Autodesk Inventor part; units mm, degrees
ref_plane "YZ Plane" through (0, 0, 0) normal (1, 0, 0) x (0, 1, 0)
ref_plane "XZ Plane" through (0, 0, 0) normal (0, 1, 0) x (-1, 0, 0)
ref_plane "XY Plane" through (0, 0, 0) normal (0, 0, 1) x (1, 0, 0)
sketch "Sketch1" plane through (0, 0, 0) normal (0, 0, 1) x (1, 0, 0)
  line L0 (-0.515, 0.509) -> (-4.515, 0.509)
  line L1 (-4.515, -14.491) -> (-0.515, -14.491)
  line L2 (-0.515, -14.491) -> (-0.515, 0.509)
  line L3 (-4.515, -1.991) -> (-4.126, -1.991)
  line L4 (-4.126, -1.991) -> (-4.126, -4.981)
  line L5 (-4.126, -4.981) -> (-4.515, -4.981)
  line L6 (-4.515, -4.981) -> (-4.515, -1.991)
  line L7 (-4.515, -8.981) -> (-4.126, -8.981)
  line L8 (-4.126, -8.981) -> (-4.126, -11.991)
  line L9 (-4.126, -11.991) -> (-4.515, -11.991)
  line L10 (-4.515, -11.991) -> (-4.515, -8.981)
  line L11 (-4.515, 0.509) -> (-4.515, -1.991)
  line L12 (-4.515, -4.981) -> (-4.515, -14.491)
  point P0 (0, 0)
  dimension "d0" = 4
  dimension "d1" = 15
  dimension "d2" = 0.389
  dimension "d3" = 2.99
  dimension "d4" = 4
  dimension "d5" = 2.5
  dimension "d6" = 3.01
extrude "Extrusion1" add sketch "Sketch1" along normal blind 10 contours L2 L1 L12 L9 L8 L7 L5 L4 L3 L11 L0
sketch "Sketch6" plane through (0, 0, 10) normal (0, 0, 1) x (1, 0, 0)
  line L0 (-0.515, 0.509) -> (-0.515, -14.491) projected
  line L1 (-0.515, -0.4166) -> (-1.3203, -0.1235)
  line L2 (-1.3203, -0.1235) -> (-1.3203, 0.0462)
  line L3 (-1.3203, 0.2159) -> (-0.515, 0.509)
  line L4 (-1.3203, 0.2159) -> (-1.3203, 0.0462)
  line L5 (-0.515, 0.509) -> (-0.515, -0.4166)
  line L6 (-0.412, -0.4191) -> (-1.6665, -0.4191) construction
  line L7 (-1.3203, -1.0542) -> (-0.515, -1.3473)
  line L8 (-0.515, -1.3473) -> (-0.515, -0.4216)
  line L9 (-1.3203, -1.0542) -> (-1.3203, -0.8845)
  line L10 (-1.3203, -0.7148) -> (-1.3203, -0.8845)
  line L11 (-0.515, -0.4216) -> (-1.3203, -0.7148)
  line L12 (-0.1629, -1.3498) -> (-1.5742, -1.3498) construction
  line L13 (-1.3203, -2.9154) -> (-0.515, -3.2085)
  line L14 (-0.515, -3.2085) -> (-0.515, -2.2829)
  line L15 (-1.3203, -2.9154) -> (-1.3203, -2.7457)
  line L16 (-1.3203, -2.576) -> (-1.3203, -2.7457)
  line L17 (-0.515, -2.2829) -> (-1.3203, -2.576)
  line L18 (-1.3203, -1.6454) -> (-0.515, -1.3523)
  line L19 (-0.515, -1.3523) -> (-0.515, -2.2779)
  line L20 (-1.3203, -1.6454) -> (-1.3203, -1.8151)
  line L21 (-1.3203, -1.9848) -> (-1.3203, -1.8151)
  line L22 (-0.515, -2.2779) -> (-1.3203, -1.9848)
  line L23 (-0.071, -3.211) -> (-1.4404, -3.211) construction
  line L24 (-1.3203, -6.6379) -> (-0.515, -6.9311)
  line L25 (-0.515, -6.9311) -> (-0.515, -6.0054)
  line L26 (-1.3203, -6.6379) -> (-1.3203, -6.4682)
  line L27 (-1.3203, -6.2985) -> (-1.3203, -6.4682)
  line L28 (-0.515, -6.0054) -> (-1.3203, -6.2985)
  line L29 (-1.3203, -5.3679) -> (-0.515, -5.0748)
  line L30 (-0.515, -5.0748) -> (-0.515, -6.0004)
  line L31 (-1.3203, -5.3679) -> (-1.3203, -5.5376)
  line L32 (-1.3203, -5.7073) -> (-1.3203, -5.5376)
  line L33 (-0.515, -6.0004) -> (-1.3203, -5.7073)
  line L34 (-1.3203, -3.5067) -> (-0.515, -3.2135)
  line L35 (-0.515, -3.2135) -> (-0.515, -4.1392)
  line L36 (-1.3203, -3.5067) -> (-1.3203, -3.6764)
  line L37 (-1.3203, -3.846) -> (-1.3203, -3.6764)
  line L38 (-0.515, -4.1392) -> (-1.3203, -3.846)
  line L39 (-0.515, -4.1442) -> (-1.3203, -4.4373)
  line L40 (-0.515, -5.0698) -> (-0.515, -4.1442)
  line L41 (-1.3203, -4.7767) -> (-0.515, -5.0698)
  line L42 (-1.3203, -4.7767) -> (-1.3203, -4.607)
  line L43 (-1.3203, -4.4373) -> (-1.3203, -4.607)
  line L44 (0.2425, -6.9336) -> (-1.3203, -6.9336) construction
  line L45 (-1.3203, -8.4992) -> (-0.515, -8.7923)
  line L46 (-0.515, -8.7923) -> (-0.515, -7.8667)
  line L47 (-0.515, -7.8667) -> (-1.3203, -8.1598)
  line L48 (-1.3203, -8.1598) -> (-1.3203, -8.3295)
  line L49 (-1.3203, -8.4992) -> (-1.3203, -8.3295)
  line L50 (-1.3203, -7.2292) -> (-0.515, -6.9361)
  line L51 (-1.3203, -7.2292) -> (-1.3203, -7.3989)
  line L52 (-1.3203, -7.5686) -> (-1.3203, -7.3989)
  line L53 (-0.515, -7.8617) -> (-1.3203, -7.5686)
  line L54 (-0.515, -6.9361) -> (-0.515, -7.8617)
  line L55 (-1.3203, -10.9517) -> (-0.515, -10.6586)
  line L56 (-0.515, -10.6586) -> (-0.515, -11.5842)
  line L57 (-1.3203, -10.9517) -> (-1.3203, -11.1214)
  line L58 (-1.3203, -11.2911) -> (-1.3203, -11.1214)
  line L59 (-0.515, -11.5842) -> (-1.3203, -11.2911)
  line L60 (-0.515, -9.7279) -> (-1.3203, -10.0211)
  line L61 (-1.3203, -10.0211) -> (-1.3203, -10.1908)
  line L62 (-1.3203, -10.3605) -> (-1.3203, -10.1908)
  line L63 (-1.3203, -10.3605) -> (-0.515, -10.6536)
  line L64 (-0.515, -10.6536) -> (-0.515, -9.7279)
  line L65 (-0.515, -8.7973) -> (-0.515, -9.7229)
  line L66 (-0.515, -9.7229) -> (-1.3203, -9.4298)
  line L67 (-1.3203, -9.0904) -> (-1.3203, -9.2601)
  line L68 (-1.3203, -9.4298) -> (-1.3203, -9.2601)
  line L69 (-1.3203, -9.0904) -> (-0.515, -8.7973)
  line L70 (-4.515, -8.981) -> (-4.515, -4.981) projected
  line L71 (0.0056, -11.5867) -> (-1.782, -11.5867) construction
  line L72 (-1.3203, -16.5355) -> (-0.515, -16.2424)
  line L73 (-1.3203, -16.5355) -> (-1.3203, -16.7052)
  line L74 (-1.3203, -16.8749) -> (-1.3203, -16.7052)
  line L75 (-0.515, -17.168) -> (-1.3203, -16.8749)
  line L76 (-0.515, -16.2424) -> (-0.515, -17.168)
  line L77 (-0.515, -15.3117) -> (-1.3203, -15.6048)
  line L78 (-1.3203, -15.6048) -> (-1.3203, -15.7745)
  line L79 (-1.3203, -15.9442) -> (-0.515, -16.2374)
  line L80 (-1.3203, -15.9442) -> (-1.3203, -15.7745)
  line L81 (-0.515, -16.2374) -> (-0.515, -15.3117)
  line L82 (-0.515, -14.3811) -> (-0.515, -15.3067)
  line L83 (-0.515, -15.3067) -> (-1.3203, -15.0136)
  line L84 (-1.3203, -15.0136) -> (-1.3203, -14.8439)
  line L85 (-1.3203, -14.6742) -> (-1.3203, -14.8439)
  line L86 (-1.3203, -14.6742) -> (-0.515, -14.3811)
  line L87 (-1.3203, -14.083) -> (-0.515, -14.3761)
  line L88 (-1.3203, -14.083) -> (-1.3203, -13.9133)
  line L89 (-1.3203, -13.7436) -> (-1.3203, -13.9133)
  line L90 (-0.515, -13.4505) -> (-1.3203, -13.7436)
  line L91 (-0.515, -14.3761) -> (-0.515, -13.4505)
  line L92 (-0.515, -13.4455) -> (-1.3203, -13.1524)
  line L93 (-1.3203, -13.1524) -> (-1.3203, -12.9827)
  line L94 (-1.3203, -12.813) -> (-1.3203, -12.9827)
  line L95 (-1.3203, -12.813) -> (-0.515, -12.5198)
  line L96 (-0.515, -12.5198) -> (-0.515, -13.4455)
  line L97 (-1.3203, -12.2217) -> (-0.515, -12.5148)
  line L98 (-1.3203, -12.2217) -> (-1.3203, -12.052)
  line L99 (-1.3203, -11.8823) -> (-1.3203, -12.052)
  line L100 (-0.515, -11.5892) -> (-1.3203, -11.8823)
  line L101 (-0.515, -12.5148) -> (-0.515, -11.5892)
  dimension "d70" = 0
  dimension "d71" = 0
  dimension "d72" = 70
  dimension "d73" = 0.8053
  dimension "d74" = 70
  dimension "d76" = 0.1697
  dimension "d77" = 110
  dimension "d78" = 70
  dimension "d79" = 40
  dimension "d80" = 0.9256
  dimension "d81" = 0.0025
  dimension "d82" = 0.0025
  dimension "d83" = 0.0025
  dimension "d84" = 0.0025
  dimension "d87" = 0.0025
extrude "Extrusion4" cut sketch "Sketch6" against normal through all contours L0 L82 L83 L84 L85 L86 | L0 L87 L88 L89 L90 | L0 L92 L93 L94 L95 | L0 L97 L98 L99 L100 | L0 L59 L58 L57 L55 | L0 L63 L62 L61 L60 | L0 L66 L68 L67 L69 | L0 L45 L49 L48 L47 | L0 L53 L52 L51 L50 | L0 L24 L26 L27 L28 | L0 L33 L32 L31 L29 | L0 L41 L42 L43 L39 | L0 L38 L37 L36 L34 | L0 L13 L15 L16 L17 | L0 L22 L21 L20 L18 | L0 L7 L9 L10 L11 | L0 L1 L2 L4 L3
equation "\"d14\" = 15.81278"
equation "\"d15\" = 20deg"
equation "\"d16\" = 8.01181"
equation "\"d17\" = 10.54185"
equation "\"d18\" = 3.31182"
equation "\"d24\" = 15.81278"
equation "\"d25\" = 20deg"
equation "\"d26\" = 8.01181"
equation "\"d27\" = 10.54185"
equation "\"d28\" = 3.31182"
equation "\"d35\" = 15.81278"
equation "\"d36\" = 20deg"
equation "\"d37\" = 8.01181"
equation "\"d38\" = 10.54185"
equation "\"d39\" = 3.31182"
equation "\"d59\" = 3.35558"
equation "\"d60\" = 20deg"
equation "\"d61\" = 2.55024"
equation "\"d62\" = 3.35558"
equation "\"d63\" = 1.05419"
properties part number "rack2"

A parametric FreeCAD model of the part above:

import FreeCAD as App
import Part
import Sketcher
Q = App.Units.Quantity

doc = App.newDocument("Part")
body = doc.addObject("PartDesign::Body", "Body")

# Sketch on XY plane
sketch1 = body.newObject("Sketcher::SketchObject", "Sketch")
sketch1.AttachmentSupport = (doc.getObject("XY_Plane"), [""])
sketch1.MapMode = "FlatFace"
sketch1.addGeometry([
    Part.LineSegment(App.Vector(-0.52, -14.49, 0), App.Vector(-0.52, 0.51, 0)),  # 0
    Part.LineSegment(App.Vector(-0.52, 0.51, 0), App.Vector(-4.51, 0.51, 0)),  # 1
    Part.LineSegment(App.Vector(-4.51, 0.51, 0), App.Vector(-4.51, -1.99, 0)),  # 2
    Part.LineSegment(App.Vector(-4.51, -1.99, 0), App.Vector(-4.13, -1.99, 0)),  # 3
    Part.LineSegment(App.Vector(-4.13, -1.99, 0), App.Vector(-4.13, -4.98, 0)),  # 4
    Part.LineSegment(App.Vector(-4.13, -4.98, 0), App.Vector(-4.51, -4.98, 0)),  # 5
    Part.LineSegment(App.Vector(-4.51, -4.98, 0), App.Vector(-4.51, -8.98, 0)),  # 6
    Part.LineSegment(App.Vector(-4.51, -8.98, 0), App.Vector(-4.13, -8.98, 0)),  # 7
    Part.LineSegment(App.Vector(-4.13, -8.98, 0), App.Vector(-4.13, -11.99, 0)),  # 8
    Part.LineSegment(App.Vector(-4.13, -11.99, 0), App.Vector(-4.51, -11.99, 0)),  # 9
    Part.LineSegment(App.Vector(-4.51, -11.99, 0), App.Vector(-4.51, -14.49, 0)),  # 10
    Part.LineSegment(App.Vector(-4.51, -14.49, 0), App.Vector(-0.52, -14.49, 0)),  # 11
], False)
sketch1.addConstraint([
    Sketcher.Constraint("Coincident", 0, 2, 1, 1),
    Sketcher.Constraint("Coincident", 1, 2, 2, 1),
    Sketcher.Constraint("Coincident", 2, 2, 3, 1),
    Sketcher.Constraint("Coincident", 3, 2, 4, 1),
    Sketcher.Constraint("Coincident", 4, 2, 5, 1),
    Sketcher.Constraint("Coincident", 5, 2, 6, 1),
    Sketcher.Constraint("Coincident", 6, 2, 7, 1),
    Sketcher.Constraint("Coincident", 7, 2, 8, 1),
    Sketcher.Constraint("Coincident", 8, 2, 9, 1),
    Sketcher.Constraint("Coincident", 9, 2, 10, 1),
    Sketcher.Constraint("Coincident", 10, 2, 11, 1),
    Sketcher.Constraint("Coincident", 11, 2, 0, 1),
    Sketcher.Constraint("Vertical", 0),
    Sketcher.Constraint("Horizontal", 1),
    Sketcher.Constraint("Vertical", 2),
    Sketcher.Constraint("Horizontal", 3),
    Sketcher.Constraint("Vertical", 4),
    Sketcher.Constraint("Horizontal", 5),
    Sketcher.Constraint("Vertical", 6),
    Sketcher.Constraint("Horizontal", 7),
    Sketcher.Constraint("Vertical", 8),
    Sketcher.Constraint("Horizontal", 9),
    Sketcher.Constraint("Vertical", 10),
    Sketcher.Constraint("Horizontal", 11),
    Sketcher.Constraint("Vertical", 2, 2, 5, 2),
    Sketcher.Constraint("Vertical", 4, 2, 7, 2),
    Sketcher.Constraint("Vertical", 6, 2, 9, 2),
    Sketcher.Constraint("Equal", 11, 6),
    Sketcher.Constraint("Equal", 2, 10),
    Sketcher.Constraint("DistanceX", 1, 2, 1, 1, Q("4 mm")),
    Sketcher.Constraint("DistanceY", 0, 1, 0, 2, Q("15 mm")),
    Sketcher.Constraint("DistanceY", 2, 2, 2, 1, Q("2.5 mm")),
    Sketcher.Constraint("DistanceY", 4, 2, 4, 1, Q("2.99 mm")),
    Sketcher.Constraint("DistanceX", 3, 1, 3, 2, Q("0.389 mm")),
    Sketcher.Constraint("DistanceX", 0, 2, -1, 1, Q("0.515 mm")),
    Sketcher.Constraint("DistanceY", -1, 1, 0, 2, Q("0.509 mm")),
])
pad1 = body.newObject("PartDesign::Pad", "Pad")
pad1.Profile = sketch1
pad1.Length = 10

# Sketch on XY plane
sketch2 = body.newObject("Sketcher::SketchObject", "Sketch001")
sketch2.AttachmentSupport = (doc.getObject("XY_Plane"), [""])
sketch2.MapMode = "FlatFace"
sketch2.AttachmentOffset = App.Placement(App.Vector(0, 0, 10), App.Rotation())
sketch2.addGeometry([
    Part.LineSegment(App.Vector(-0.52, -15.31, 0), App.Vector(-0.52, -14.38, 0)),  # 0
    Part.LineSegment(App.Vector(-0.52, -14.38, 0), App.Vector(-1.32, -14.67, 0)),  # 1
    Part.LineSegment(App.Vector(-1.32, -14.67, 0), App.Vector(-1.32, -15.01, 0)),  # 2
    Part.LineSegment(App.Vector(-1.32, -15.01, 0), App.Vector(-0.52, -15.31, 0)),  # 3
    Part.LineSegment(App.Vector(-0.52, -14.38, 0), App.Vector(-0.52, -13.45, 0)),  # 4
    Part.LineSegment(App.Vector(-0.52, -13.45, 0), App.Vector(-1.32, -13.74, 0)),  # 5
    Part.LineSegment(App.Vector(-1.32, -13.74, 0), App.Vector(-1.32, -14.08, 0)),  # 6
    Part.LineSegment(App.Vector(-1.32, -14.08, 0), App.Vector(-0.52, -14.38, 0)),  # 7
    Part.LineSegment(App.Vector(-0.52, -13.45, 0), App.Vector(-0.52, -12.52, 0)),  # 8
    Part.LineSegment(App.Vector(-0.52, -12.52, 0), App.Vector(-1.32, -12.81, 0)),  # 9
    Part.LineSegment(App.Vector(-1.32, -12.81, 0), App.Vector(-1.32, -13.15, 0)),  # 10
    Part.LineSegment(App.Vector(-1.32, -13.15, 0), App.Vector(-0.52, -13.45, 0)),  # 11
    Part.LineSegment(App.Vector(-0.52, -12.51, 0), App.Vector(-0.52, -11.59, 0)),  # 12
    Part.LineSegment(App.Vector(-0.52, -11.59, 0), App.Vector(-1.32, -11.88, 0)),  # 13
    Part.LineSegment(App.Vector(-1.32, -11.88, 0), App.Vector(-1.32, -12.22, 0)),  # 14
    Part.LineSegment(App.Vector(-1.32, -12.22, 0), App.Vector(-0.52, -12.51, 0)),  # 15
    Part.LineSegment(App.Vector(-0.52, -11.58, 0), App.Vector(-0.52, -10.66, 0)),  # 16
    Part.LineSegment(App.Vector(-0.52, -10.66, 0), App.Vector(-1.32, -10.95, 0)),  # 17
    Part.LineSegment(App.Vector(-1.32, -10.95, 0), App.Vector(-1.32, -11.29, 0)),  # 18
    Part.LineSegment(App.Vector(-1.32, -11.29, 0), App.Vector(-0.52, -11.58, 0)),  # 19
    Part.LineSegment(App.Vector(-0.52, -10.65, 0), App.Vector(-0.52, -9.73, 0)),  # 20
    Part.LineSegment(App.Vector(-0.52, -9.73, 0), App.Vector(-1.32, -10.02, 0)),  # 21
    Part.LineSegment(App.Vector(-1.32, -10.02, 0), App.Vector(-1.32, -10.36, 0)),  # 22
    Part.LineSegment(App.Vector(-1.32, -10.36, 0), App.Vector(-0.52, -10.65, 0)),  # 23
    Part.LineSegment(App.Vector(-0.52, -9.72, 0), App.Vector(-0.52, -8.8, 0)),  # 24
    Part.LineSegment(App.Vector(-0.52, -8.8, 0), App.Vector(-1.32, -9.09, 0)),  # 25
    Part.LineSegment(App.Vector(-1.32, -9.09, 0), App.Vector(-1.32, -9.43, 0)),  # 26
    Part.LineSegment(App.Vector(-1.32, -9.43, 0), App.Vector(-0.52, -9.72, 0)),  # 27
    Part.LineSegment(App.Vector(-0.52, -8.79, 0), App.Vector(-0.52, -7.87, 0)),  # 28
    Part.LineSegment(App.Vector(-0.52, -7.87, 0), App.Vector(-1.32, -8.16, 0)),  # 29
    Part.LineSegment(App.Vector(-1.32, -8.16, 0), App.Vector(-1.32, -8.5, 0)),  # 30
    Part.LineSegment(App.Vector(-1.32, -8.5, 0), App.Vector(-0.52, -8.79, 0)),  # 31
    Part.LineSegment(App.Vector(-0.52, -7.86, 0), App.Vector(-0.52, -6.94, 0)),  # 32
    Part.LineSegment(App.Vector(-0.52, -6.94, 0), App.Vector(-1.32, -7.23, 0)),  # 33
    Part.LineSegment(App.Vector(-1.32, -7.23, 0), App.Vector(-1.32, -7.57, 0)),  # 34
    Part.LineSegment(App.Vector(-1.32, -7.57, 0), App.Vector(-0.52, -7.86, 0)),  # 35
    Part.LineSegment(App.Vector(-0.52, -6.93, 0), App.Vector(-0.52, -6.01, 0)),  # 36
    Part.LineSegment(App.Vector(-0.52, -6.01, 0), App.Vector(-1.32, -6.3, 0)),  # 37
    Part.LineSegment(App.Vector(-1.32, -6.3, 0), App.Vector(-1.32, -6.64, 0)),  # 38
    Part.LineSegment(App.Vector(-1.32, -6.64, 0), App.Vector(-0.52, -6.93, 0)),  # 39
    Part.LineSegment(App.Vector(-0.52, -6, 0), App.Vector(-0.52, -5.07, 0)),  # 40
    Part.LineSegment(App.Vector(-0.52, -5.07, 0), App.Vector(-1.32, -5.37, 0)),  # 41
    Part.LineSegment(App.Vector(-1.32, -5.37, 0), App.Vector(-1.32, -5.71, 0)),  # 42
    Part.LineSegment(App.Vector(-1.32, -5.71, 0), App.Vector(-0.52, -6, 0)),  # 43
    Part.LineSegment(App.Vector(-0.52, -5.07, 0), App.Vector(-0.52, -4.14, 0)),  # 44
    Part.LineSegment(App.Vector(-0.52, -4.14, 0), App.Vector(-1.32, -4.44, 0)),  # 45
    Part.LineSegment(App.Vector(-1.32, -4.44, 0), App.Vector(-1.32, -4.78, 0)),  # 46
    Part.LineSegment(App.Vector(-1.32, -4.78, 0), App.Vector(-0.52, -5.07, 0)),  # 47
    Part.LineSegment(App.Vector(-0.52, -4.14, 0), App.Vector(-0.52, -3.21, 0)),  # 48
    Part.LineSegment(App.Vector(-0.52, -3.21, 0), App.Vector(-1.32, -3.51, 0)),  # 49
    Part.LineSegment(App.Vector(-1.32, -3.51, 0), App.Vector(-1.32, -3.85, 0)),  # 50
    Part.LineSegment(App.Vector(-1.32, -3.85, 0), App.Vector(-0.52, -4.14, 0)),  # 51
    Part.LineSegment(App.Vector(-0.52, -3.21, 0), App.Vector(-0.52, -2.28, 0)),  # 52
    Part.LineSegment(App.Vector(-0.52, -2.28, 0), App.Vector(-1.32, -2.58, 0)),  # 53
    Part.LineSegment(App.Vector(-1.32, -2.58, 0), App.Vector(-1.32, -2.92, 0)),  # 54
    Part.LineSegment(App.Vector(-1.32, -2.92, 0), App.Vector(-0.52, -3.21, 0)),  # 55
    Part.LineSegment(App.Vector(-0.52, -2.28, 0), App.Vector(-0.52, -1.35, 0)),  # 56
    Part.LineSegment(App.Vector(-0.52, -1.35, 0), App.Vector(-1.32, -1.65, 0)),  # 57
    Part.LineSegment(App.Vector(-1.32, -1.65, 0), App.Vector(-1.32, -1.98, 0)),  # 58
    Part.LineSegment(App.Vector(-1.32, -1.98, 0), App.Vector(-0.52, -2.28, 0)),  # 59
    Part.LineSegment(App.Vector(-0.52, -1.35, 0), App.Vector(-0.52, -0.42, 0)),  # 60
    Part.LineSegment(App.Vector(-0.52, -0.42, 0), App.Vector(-1.32, -0.71, 0)),  # 61
    Part.LineSegment(App.Vector(-1.32, -0.71, 0), App.Vector(-1.32, -1.05, 0)),  # 62
    Part.LineSegment(App.Vector(-1.32, -1.05, 0), App.Vector(-0.52, -1.35, 0)),  # 63
    Part.LineSegment(App.Vector(-0.52, -0.42, 0), App.Vector(-0.52, 0.51, 0)),  # 64
    Part.LineSegment(App.Vector(-0.52, 0.51, 0), App.Vector(-1.32, 0.22, 0)),  # 65
    Part.LineSegment(App.Vector(-1.32, 0.22, 0), App.Vector(-1.32, -0.12, 0)),  # 66
    Part.LineSegment(App.Vector(-1.32, -0.12, 0), App.Vector(-0.52, -0.42, 0)),  # 67
], False)
sketch2.addConstraint([
    Sketcher.Constraint("Coincident", 0, 2, 1, 1),
    Sketcher.Constraint("Coincident", 1, 2, 2, 1),
    Sketcher.Constraint("Coincident", 2, 2, 3, 1),
    Sketcher.Constraint("Coincident", 3, 2, 0, 1),
    Sketcher.Constraint("Coincident", 4, 2, 5, 1),
    Sketcher.Constraint("Coincident", 5, 2, 6, 1),
    Sketcher.Constraint("Coincident", 6, 2, 7, 1),
    Sketcher.Constraint("Coincident", 7, 2, 4, 1),
    Sketcher.Constraint("Coincident", 8, 2, 9, 1),
    Sketcher.Constraint("Coincident", 9, 2, 10, 1),
    Sketcher.Constraint("Coincident", 10, 2, 11, 1),
    Sketcher.Constraint("Coincident", 11, 2, 8, 1),
    Sketcher.Constraint("Coincident", 12, 2, 13, 1),
    Sketcher.Constraint("Coincident", 13, 2, 14, 1),
    Sketcher.Constraint("Coincident", 14, 2, 15, 1),
    Sketcher.Constraint("Coincident", 15, 2, 12, 1),
    Sketcher.Constraint("Coincident", 16, 2, 17, 1),
    Sketcher.Constraint("Coincident", 17, 2, 18, 1),
    Sketcher.Constraint("Coincident", 18, 2, 19, 1),
    Sketcher.Constraint("Coincident", 19, 2, 16, 1),
    Sketcher.Constraint("Coincident", 20, 2, 21, 1),
    Sketcher.Constraint("Coincident", 21, 2, 22, 1),
    Sketcher.Constraint("Coincident", 22, 2, 23, 1),
    Sketcher.Constraint("Coincident", 23, 2, 20, 1),
    Sketcher.Constraint("Coincident", 24, 2, 25, 1),
    Sketcher.Constraint("Coincident", 25, 2, 26, 1),
    Sketcher.Constraint("Coincident", 26, 2, 27, 1),
    Sketcher.Constraint("Coincident", 27, 2, 24, 1),
    Sketcher.Constraint("Coincident", 28, 2, 29, 1),
    Sketcher.Constraint("Coincident", 29, 2, 30, 1),
    Sketcher.Constraint("Coincident", 30, 2, 31, 1),
    Sketcher.Constraint("Coincident", 31, 2, 28, 1),
    Sketcher.Constraint("Coincident", 32, 2, 33, 1),
    Sketcher.Constraint("Coincident", 33, 2, 34, 1),
    Sketcher.Constraint("Coincident", 34, 2, 35, 1),
    Sketcher.Constraint("Coincident", 35, 2, 32, 1),
    Sketcher.Constraint("Coincident", 36, 2, 37, 1),
    Sketcher.Constraint("Coincident", 37, 2, 38, 1),
    Sketcher.Constraint("Coincident", 38, 2, 39, 1),
    Sketcher.Constraint("Coincident", 39, 2, 36, 1),
    Sketcher.Constraint("Coincident", 40, 2, 41, 1),
    Sketcher.Constraint("Coincident", 41, 2, 42, 1),
    Sketcher.Constraint("Coincident", 42, 2, 43, 1),
    Sketcher.Constraint("Coincident", 43, 2, 40, 1),
    Sketcher.Constraint("Coincident", 44, 2, 45, 1),
    Sketcher.Constraint("Coincident", 45, 2, 46, 1),
    Sketcher.Constraint("Coincident", 46, 2, 47, 1),
    Sketcher.Constraint("Coincident", 47, 2, 44, 1),
    Sketcher.Constraint("Coincident", 48, 2, 49, 1),
    Sketcher.Constraint("Coincident", 49, 2, 50, 1),
    Sketcher.Constraint("Coincident", 50, 2, 51, 1),
    Sketcher.Constraint("Coincident", 51, 2, 48, 1),
    Sketcher.Constraint("Coincident", 52, 2, 53, 1),
    Sketcher.Constraint("Coincident", 53, 2, 54, 1),
    Sketcher.Constraint("Coincident", 54, 2, 55, 1),
    Sketcher.Constraint("Coincident", 55, 2, 52, 1),
    Sketcher.Constraint("Coincident", 56, 2, 57, 1),
    Sketcher.Constraint("Coincident", 57, 2, 58, 1),
    Sketcher.Constraint("Coincident", 58, 2, 59, 1),
    Sketcher.Constraint("Coincident", 59, 2, 56, 1),
    Sketcher.Constraint("Coincident", 60, 2, 61, 1),
    Sketcher.Constraint("Coincident", 61, 2, 62, 1),
    Sketcher.Constraint("Coincident", 62, 2, 63, 1),
    Sketcher.Constraint("Coincident", 63, 2, 60, 1),
    Sketcher.Constraint("Coincident", 64, 2, 65, 1),
    Sketcher.Constraint("Coincident", 65, 2, 66, 1),
    Sketcher.Constraint("Coincident", 66, 2, 67, 1),
    Sketcher.Constraint("Coincident", 67, 2, 64, 1),
    Sketcher.Constraint("Vertical", 0),
    Sketcher.Constraint("Vertical", 2),
    Sketcher.Constraint("Vertical", 4),
    Sketcher.Constraint("Vertical", 6),
    Sketcher.Constraint("Vertical", 8),
    Sketcher.Constraint("Vertical", 10),
    Sketcher.Constraint("Vertical", 12),
    Sketcher.Constraint("Vertical", 14),
    Sketcher.Constraint("Vertical", 16),
    Sketcher.Constraint("Vertical", 18),
    Sketcher.Constraint("Vertical", 20),
    Sketcher.Constraint("Vertical", 22),
    Sketcher.Constraint("Vertical", 24),
    Sketcher.Constraint("Vertical", 26),
    Sketcher.Constraint("Vertical", 28),
    Sketcher.Constraint("Vertical", 30),
    Sketcher.Constraint("Vertical", 32),
    Sketcher.Constraint("Vertical", 34),
    Sketcher.Constraint("Vertical", 36),
    Sketcher.Constraint("Vertical", 38),
    Sketcher.Constraint("Vertical", 40),
    Sketcher.Constraint("Vertical", 42),
    Sketcher.Constraint("Vertical", 44),
    Sketcher.Constraint("Vertical", 46),
    Sketcher.Constraint("Vertical", 48),
    Sketcher.Constraint("Vertical", 50),
    Sketcher.Constraint("Vertical", 52),
    Sketcher.Constraint("Vertical", 54),
    Sketcher.Constraint("Vertical", 56),
    Sketcher.Constraint("Vertical", 58),
    Sketcher.Constraint("Vertical", 60),
    Sketcher.Constraint("Vertical", 62),
    Sketcher.Constraint("Vertical", 64),
    Sketcher.Constraint("Vertical", 66),
    Sketcher.Constraint("Parallel", 1, 5),
    Sketcher.Constraint("Parallel", 3, 7),
    Sketcher.Constraint("Parallel", 5, 9),
    Sketcher.Constraint("Parallel", 7, 11),
    Sketcher.Constraint("Parallel", 9, 13),
    Sketcher.Constraint("Parallel", 11, 15),
    Sketcher.Constraint("Parallel", 13, 17),
    Sketcher.Constraint("Parallel", 15, 19),
    Sketcher.Constraint("Parallel", 17, 21),
    Sketcher.Constraint("Parallel", 19, 23),
    Sketcher.Constraint("Parallel", 21, 25),
    Sketcher.Constraint("Parallel", 23, 27),
    Sketcher.Constraint("Parallel", 25, 29),
    Sketcher.Constraint("Parallel", 27, 31),
    Sketcher.Constraint("Parallel", 29, 33),
    Sketcher.Constraint("Parallel", 31, 35),
    Sketcher.Constraint("Parallel", 33, 37),
    Sketcher.Constraint("Parallel", 35, 39),
    Sketcher.Constraint("Parallel", 37, 41),
    Sketcher.Constraint("Parallel", 39, 43),
    Sketcher.Constraint("Parallel", 41, 45),
    Sketcher.Constraint("Parallel", 43, 47),
    Sketcher.Constraint("Parallel", 45, 49),
    Sketcher.Constraint("Parallel", 47, 51),
    Sketcher.Constraint("Parallel", 49, 53),
    Sketcher.Constraint("Parallel", 51, 55),
    Sketcher.Constraint("Parallel", 53, 57),
    Sketcher.Constraint("Parallel", 55, 59),
    Sketcher.Constraint("Parallel", 57, 61),
    Sketcher.Constraint("Parallel", 59, 63),
    Sketcher.Constraint("Parallel", 61, 65),
    Sketcher.Constraint("Parallel", 63, 67),
    Sketcher.Constraint("Vertical", 3, 2, 4, 2),
    Sketcher.Constraint("Vertical", 2, 2, 5, 2),
    Sketcher.Constraint("Vertical", 7, 2, 8, 2),
    Sketcher.Constraint("Vertical", 6, 2, 9, 2),
    Sketcher.Constraint("Vertical", 11, 2, 12, 2),
    Sketcher.Constraint("Vertical", 10, 2, 13, 2),
    Sketcher.Constraint("Vertical", 15, 2, 16, 2),
    Sketcher.Constraint("Vertical", 14, 2, 17, 2),
    Sketcher.Constraint("Vertical", 19, 2, 20, 2),
    Sketcher.Constraint("Vertical", 18, 2, 21, 2),
    Sketcher.Constraint("Vertical", 23, 2, 24, 2),
    Sketcher.Constraint("Vertical", 22, 2, 25, 2),
    Sketcher.Constraint("Vertical", 27, 2, 28, 2),
    Sketcher.Constraint("Vertical", 26, 2, 29, 2),
    Sketcher.Constraint("Vertical", 31, 2, 32, 2),
    Sketcher.Constraint("Vertical", 30, 2, 33, 2),
    Sketcher.Constraint("Vertical", 35, 2, 36, 2),
    Sketcher.Constraint("Vertical", 34, 2, 37, 2),
    Sketcher.Constraint("Vertical", 39, 2, 40, 2),
    Sketcher.Constraint("Vertical", 38, 2, 41, 2),
    Sketcher.Constraint("Vertical", 43, 2, 44, 2),
    Sketcher.Constraint("Vertical", 42, 2, 45, 2),
    Sketcher.Constraint("Vertical", 47, 2, 48, 2),
    Sketcher.Constraint("Vertical", 46, 2, 49, 2),
    Sketcher.Constraint("Vertical", 51, 2, 52, 2),
    Sketcher.Constraint("Vertical", 50, 2, 53, 2),
    Sketcher.Constraint("Vertical", 55, 2, 56, 2),
    Sketcher.Constraint("Vertical", 54, 2, 57, 2),
    Sketcher.Constraint("Vertical", 59, 2, 60, 2),
    Sketcher.Constraint("Vertical", 58, 2, 61, 2),
    Sketcher.Constraint("Vertical", 63, 2, 64, 2),
    Sketcher.Constraint("Vertical", 62, 2, 65, 2),
    Sketcher.Constraint("Equal", 0, 4),
    Sketcher.Constraint("Equal", 4, 8),
    Sketcher.Constraint("Equal", 8, 12),
    Sketcher.Constraint("Equal", 12, 16),
    Sketcher.Constraint("Equal", 16, 20),
    Sketcher.Constraint("Equal", 20, 24),
    Sketcher.Constraint("Equal", 24, 28),
    Sketcher.Constraint("Equal", 28, 32),
    Sketcher.Constraint("Equal", 32, 36),
    Sketcher.Constraint("Equal", 36, 40),
    Sketcher.Constraint("Equal", 40, 44),
    Sketcher.Constraint("Equal", 44, 48),
    Sketcher.Constraint("Equal", 48, 52),
    Sketcher.Constraint("Equal", 52, 56),
    Sketcher.Constraint("Equal", 56, 60),
    Sketcher.Constraint("Equal", 60, 64),
    Sketcher.Constraint("Equal", 1, 3),
    Sketcher.Constraint("Angle", 1, Q("-160.0003 deg")),
    Sketcher.Constraint("DistanceY", 0, 1, 0, 2, Q("0.9256 mm")),
    Sketcher.Constraint("Distance", 1, Q("0.857 mm")),
    Sketcher.Constraint("DistanceX", 0, 2, -1, 1, Q("0.515 mm")),
    Sketcher.Constraint("DistanceY", 0, 2, -1, 1, Q("14.381 mm")),
    Sketcher.Constraint("DistanceY", 6, 2, -1, 1, Q("14.083 mm")),
    Sketcher.Constraint("DistanceY", 9, 2, -1, 1, Q("12.813 mm")),
    Sketcher.Constraint("DistanceY", 18, 2, -1, 1, Q("11.291 mm")),
    Sketcher.Constraint("DistanceY", 20, 2, -1, 1, Q("9.728 mm")),
    Sketcher.Constraint("DistanceY", 27, 2, -1, 1, Q("9.723 mm")),
    Sketcher.Constraint("DistanceY", 32, 2, -1, 1, Q("6.936 mm")),
    Sketcher.Constraint("DistanceY", 38, 2, -1, 1, Q("6.638 mm")),
    Sketcher.Constraint("DistanceY", 41, 2, -1, 1, Q("5.368 mm")),
    Sketcher.Constraint("DistanceY", 50, 2, -1, 1, Q("3.846 mm")),
    Sketcher.Constraint("DistanceY", 52, 2, -1, 1, Q("2.283 mm")),
    Sketcher.Constraint("DistanceY", 59, 2, -1, 1, Q("2.278 mm")),
    Sketcher.Constraint("DistanceY", -1, 1, 64, 2, Q("0.509 mm")),
    Sketcher.Constraint("DistanceY", 12, 2, -1, 1, Q("11.5892 mm")),
    Sketcher.Constraint("DistanceY", 28, 2, -1, 1, Q("7.8667 mm")),
    Sketcher.Constraint("DistanceY", 44, 2, -1, 1, Q("4.1442 mm")),
    Sketcher.Constraint("DistanceY", 60, 2, -1, 1, Q("0.4216 mm")),
])
pocket1 = body.newObject("PartDesign::Pocket", "Pocket")
pocket1.Profile = sketch2
pocket1.Type = "ThroughAll"

doc.recompute()
